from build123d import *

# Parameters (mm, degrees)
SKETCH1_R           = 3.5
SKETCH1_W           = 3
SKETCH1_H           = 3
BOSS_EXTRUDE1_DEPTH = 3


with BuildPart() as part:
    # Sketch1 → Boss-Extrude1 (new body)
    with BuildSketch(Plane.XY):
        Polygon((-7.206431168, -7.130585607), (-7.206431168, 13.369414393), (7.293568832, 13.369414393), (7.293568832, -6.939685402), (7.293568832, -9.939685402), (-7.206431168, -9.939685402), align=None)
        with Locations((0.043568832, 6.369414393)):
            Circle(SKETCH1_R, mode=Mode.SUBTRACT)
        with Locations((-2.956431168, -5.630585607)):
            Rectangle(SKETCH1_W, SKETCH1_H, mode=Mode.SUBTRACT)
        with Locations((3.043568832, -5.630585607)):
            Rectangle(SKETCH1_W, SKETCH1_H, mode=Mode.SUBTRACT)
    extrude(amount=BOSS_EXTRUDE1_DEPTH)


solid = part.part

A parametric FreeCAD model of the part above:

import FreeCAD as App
import Part
import Sketcher

V = App.Vector

doc = App.newDocument("Part")
body = doc.addObject("PartDesign::Body", "Body")

# Sketch on XY plane
sketch1 = body.newObject("Sketcher::SketchObject", "Sketch")
sketch1.AttachmentSupport = (doc.getObject("XY_Plane"), [""])
sketch1.MapMode = "FlatFace"
sketch1.addGeometry(Part.LineSegment(V(-7.2, 13.4, 0), V(-7.2, -9.9, 0)), False)
sketch1.addGeometry(Part.LineSegment(V(-7.2, -9.9, 0), V(7.3, -9.9, 0)), False)
sketch1.addGeometry(Part.LineSegment(V(7.3, -9.9, 0), V(7.3, 13.4, 0)), False)
sketch1.addGeometry(Part.LineSegment(V(7.3, 13.4, 0), V(-7.2, 13.4, 0)), False)
sketch1.addGeometry(Part.LineSegment(V(1.5, -7.1, 0), V(1.5, -4.1, 0)), False)
sketch1.addGeometry(Part.LineSegment(V(1.5, -4.1, 0), V(4.5, -4.1, 0)), False)
sketch1.addGeometry(Part.LineSegment(V(4.5, -4.1, 0), V(4.5, -7.1, 0)), False)
sketch1.addGeometry(Part.LineSegment(V(4.5, -7.1, 0), V(1.5, -7.1, 0)), False)
sketch1.addGeometry(Part.LineSegment(V(-4.5, -7.1, 0), V(-4.5, -4.1, 0)), False)
sketch1.addGeometry(Part.LineSegment(V(-4.5, -4.1, 0), V(-1.5, -4.1, 0)), False)
sketch1.addGeometry(Part.LineSegment(V(-1.5, -4.1, 0), V(-1.5, -7.1, 0)), False)
sketch1.addGeometry(Part.LineSegment(V(-1.5, -7.1, 0), V(-4.5, -7.1, 0)), False)
sketch1.addGeometry(Part.Circle(V(0, 6.4, 0), V(0, 0, 1), 3.5), False)
sketch1.addConstraint(Sketcher.Constraint("Coincident", 0, 2, 1, 1))
sketch1.addConstraint(Sketcher.Constraint("Coincident", 1, 2, 2, 1))
sketch1.addConstraint(Sketcher.Constraint("Coincident", 2, 2, 3, 1))
sketch1.addConstraint(Sketcher.Constraint("Coincident", 3, 2, 0, 1))
sketch1.addConstraint(Sketcher.Constraint("Coincident", 4, 2, 5, 1))
sketch1.addConstraint(Sketcher.Constraint("Coincident", 5, 2, 6, 1))
sketch1.addConstraint(Sketcher.Constraint("Coincident", 6, 2, 7, 1))
sketch1.addConstraint(Sketcher.Constraint("Coincident", 7, 2, 4, 1))
sketch1.addConstraint(Sketcher.Constraint("Coincident", 8, 2, 9, 1))
sketch1.addConstraint(Sketcher.Constraint("Coincident", 9, 2, 10, 1))
sketch1.addConstraint(Sketcher.Constraint("Coincident", 10, 2, 11, 1))
sketch1.addConstraint(Sketcher.Constraint("Coincident", 11, 2, 8, 1))
sketch1.addConstraint(Sketcher.Constraint("Vertical", 0))
sketch1.addConstraint(Sketcher.Constraint("Horizontal", 1))
sketch1.addConstraint(Sketcher.Constraint("Vertical", 2))
sketch1.addConstraint(Sketcher.Constraint("Horizontal", 3))
sketch1.addConstraint(Sketcher.Constraint("Vertical", 4))
sketch1.addConstraint(Sketcher.Constraint("Horizontal", 5))
sketch1.addConstraint(Sketcher.Constraint("Vertical", 6))
sketch1.addConstraint(Sketcher.Constraint("Horizontal", 7))
sketch1.addConstraint(Sketcher.Constraint("Vertical", 8))
sketch1.addConstraint(Sketcher.Constraint("Horizontal", 9))
sketch1.addConstraint(Sketcher.Constraint("Vertical", 10))
sketch1.addConstraint(Sketcher.Constraint("Horizontal", 11))
sketch1.addConstraint(Sketcher.Constraint("Horizontal", 5, 2, 8, 2))
sketch1.addConstraint(Sketcher.Constraint("Horizontal", 7, 2, 10, 2))
sketch1.addConstraint(Sketcher.Constraint("Equal", 7, 9))
sketch1.addConstraint(Sketcher.Constraint("Equal", 11, 4))
sketch1.addConstraint(Sketcher.Constraint("Diameter", 12, 7.0))
sketch1.addConstraint(Sketcher.Constraint("DistanceX", 5, 1, 5, 2, 3.0))
sketch1.addConstraint(Sketcher.Constraint("DistanceX", 1, 1, 1, 2, 14.5))
sketch1.addConstraint(Sketcher.Constraint("DistanceY", 12, 3, 2, 2, 7.0))
sketch1.addConstraint(Sketcher.Constraint("DistanceX", 8, 2, 4, 2, 6.0))
sketch1.addConstraint(Sketcher.Constraint("DistanceX", 12, 3, 4, 2, 1.5))
sketch1.addConstraint(Sketcher.Constraint("DistanceY", 4, 2, 12, 3, 10.5))
sketch1.addConstraint(Sketcher.Constraint("DistanceX", 0, 2, 12, 3, 7.25))
sketch1.addConstraint(Sketcher.Constraint("DistanceY", 0, 2, 0, 1, 23.3091))
sketch1.addConstraint(Sketcher.Constraint("DistanceX", -1, 1, 12, 3, 0.043569))
sketch1.addConstraint(Sketcher.Constraint("DistanceY", -1, 1, 12, 3, 6.369414))
pad1 = body.newObject("PartDesign::Pad", "Pad")
pad1.Profile = sketch1
pad1.Length = 3

doc.recompute()
